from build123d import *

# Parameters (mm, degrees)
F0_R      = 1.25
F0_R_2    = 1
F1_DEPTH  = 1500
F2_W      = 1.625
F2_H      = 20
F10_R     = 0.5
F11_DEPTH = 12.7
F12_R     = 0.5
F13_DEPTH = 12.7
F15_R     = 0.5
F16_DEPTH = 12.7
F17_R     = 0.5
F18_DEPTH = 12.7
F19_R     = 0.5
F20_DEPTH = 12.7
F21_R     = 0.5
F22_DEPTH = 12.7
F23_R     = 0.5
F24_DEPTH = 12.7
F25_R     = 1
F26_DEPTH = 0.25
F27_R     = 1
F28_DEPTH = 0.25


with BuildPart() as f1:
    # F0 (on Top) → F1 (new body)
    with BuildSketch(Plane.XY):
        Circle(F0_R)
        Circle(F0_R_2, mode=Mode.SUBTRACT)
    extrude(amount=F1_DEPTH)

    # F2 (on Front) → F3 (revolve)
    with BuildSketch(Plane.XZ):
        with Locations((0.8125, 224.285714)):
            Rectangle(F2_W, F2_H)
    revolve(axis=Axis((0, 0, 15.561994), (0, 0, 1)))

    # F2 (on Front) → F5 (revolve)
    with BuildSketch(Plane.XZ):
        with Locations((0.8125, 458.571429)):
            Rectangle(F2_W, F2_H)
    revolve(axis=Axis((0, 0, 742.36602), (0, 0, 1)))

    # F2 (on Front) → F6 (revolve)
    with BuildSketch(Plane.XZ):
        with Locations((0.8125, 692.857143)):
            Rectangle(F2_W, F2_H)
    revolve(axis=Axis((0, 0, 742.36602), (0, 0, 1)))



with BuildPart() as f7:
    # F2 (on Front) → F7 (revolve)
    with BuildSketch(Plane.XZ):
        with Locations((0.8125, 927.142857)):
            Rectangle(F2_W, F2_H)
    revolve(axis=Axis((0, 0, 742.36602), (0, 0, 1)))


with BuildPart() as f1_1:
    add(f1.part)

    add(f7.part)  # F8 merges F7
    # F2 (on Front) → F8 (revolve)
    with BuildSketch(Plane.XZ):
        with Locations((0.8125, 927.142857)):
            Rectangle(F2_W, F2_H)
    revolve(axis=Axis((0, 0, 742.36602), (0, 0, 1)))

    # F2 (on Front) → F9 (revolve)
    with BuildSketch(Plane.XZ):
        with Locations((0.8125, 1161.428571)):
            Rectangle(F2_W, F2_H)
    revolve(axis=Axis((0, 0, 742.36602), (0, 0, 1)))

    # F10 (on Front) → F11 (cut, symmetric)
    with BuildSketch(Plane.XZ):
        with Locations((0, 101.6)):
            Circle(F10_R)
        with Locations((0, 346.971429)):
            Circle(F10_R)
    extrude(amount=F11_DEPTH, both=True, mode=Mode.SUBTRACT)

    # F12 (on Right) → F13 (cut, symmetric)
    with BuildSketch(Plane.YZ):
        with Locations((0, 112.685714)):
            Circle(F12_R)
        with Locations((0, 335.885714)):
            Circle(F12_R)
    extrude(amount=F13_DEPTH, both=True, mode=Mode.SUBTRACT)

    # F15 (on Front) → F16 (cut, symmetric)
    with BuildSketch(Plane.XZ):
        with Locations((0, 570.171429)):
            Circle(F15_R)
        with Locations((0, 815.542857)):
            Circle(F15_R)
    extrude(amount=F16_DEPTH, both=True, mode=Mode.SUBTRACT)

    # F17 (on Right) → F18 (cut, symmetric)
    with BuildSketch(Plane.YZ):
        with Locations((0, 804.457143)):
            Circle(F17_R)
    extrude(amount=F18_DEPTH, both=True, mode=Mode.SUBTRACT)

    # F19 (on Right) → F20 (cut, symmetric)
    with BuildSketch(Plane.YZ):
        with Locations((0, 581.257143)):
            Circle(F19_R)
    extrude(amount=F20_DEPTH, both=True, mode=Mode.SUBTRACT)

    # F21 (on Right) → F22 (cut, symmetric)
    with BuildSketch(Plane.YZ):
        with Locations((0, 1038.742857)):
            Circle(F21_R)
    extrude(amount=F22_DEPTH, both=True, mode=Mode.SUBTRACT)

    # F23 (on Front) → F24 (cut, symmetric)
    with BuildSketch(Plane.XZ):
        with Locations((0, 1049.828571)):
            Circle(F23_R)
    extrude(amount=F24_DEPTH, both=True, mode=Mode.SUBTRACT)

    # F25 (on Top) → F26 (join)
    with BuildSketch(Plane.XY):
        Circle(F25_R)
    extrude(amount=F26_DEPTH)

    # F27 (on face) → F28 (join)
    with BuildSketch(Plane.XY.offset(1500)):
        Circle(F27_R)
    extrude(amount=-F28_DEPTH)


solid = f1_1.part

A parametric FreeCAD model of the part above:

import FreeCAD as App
import Part
import Sketcher

V = App.Vector


def add_polygon(sketch, points):
    """Adds a closed chain of lines whose ends are joined by coincident constraints."""
    first, n = sketch.GeometryCount, len(points)
    for a, b in zip(points, points[1:] + points[:1]):
        sketch.addGeometry(Part.LineSegment(App.Vector(*a, 0), App.Vector(*b, 0)), False)
    for i in range(n):
        sketch.addConstraint(Sketcher.Constraint("Coincident", first + i, 2, first + (i + 1) % n, 1))

doc = App.newDocument("Part")
body = doc.addObject("PartDesign::Body", "Body")

# Sketch on XY plane
sketch1 = body.newObject("Sketcher::SketchObject", "Sketch")
sketch1.AttachmentSupport = (doc.getObject("XY_Plane"), [""])
sketch1.MapMode = "FlatFace"
sketch1.addGeometry([
    Part.Circle(V(0, 0, 0), V(0, 0, 1), 1.2),
    Part.Circle(V(0, 0, 0), V(0, 0, 1), 1),
], False)
sketch1.addConstraint([
    Sketcher.Constraint("Coincident", 0, 3, -1, 1),
    Sketcher.Constraint("Coincident", 1, 3, -1, 1),
    Sketcher.Constraint("Diameter", 1, 2.0),
    Sketcher.Constraint("Diameter", 0, 2.5),
])
pad1 = body.newObject("PartDesign::Pad", "Pad")
pad1.Profile = sketch1
pad1.Length = 1500

# Sketch on XZ plane
sketch2 = body.newObject("Sketcher::SketchObject", "Sketch001")
sketch2.AttachmentSupport = (doc.getObject("XZ_Plane"), [""])
sketch2.MapMode = "FlatFace"
add_polygon(sketch2, [(0, 234.3), (0, 214.3), (1.6, 214.3), (1.6, 234.3)])  # lines 0-3
sketch2.addConstraint([
    Sketcher.Constraint("Vertical", 0),
    Sketcher.Constraint("Horizontal", 1),
    Sketcher.Constraint("Vertical", 2),
    Sketcher.Constraint("Horizontal", 3),
    Sketcher.Constraint("PointOnObject", 0, 2, -2),
    Sketcher.Constraint("DistanceY", 0, 2, 0, 1, 20.0),
    Sketcher.Constraint("DistanceX", 1, 1, 1, 2, 1.625),
    Sketcher.Constraint("DistanceY", -1, 1, 0, 2, 214.285714),
])
revolution = body.newObject("PartDesign::Revolution", "Revolution")
revolution.Profile = sketch2
revolution.ReferenceAxis = (sketch2, ["V_Axis"])
revolution.Angle = 360

# Sketch on XZ plane
sketch3 = body.newObject("Sketcher::SketchObject", "Sketch002")
sketch3.AttachmentSupport = (doc.getObject("XZ_Plane"), [""])
sketch3.MapMode = "FlatFace"
add_polygon(sketch3, [(0, 468.6), (0, 448.6), (1.6, 448.6), (1.6, 468.6)])  # lines 0-3
sketch3.addConstraint([
    Sketcher.Constraint("Vertical", 0),
    Sketcher.Constraint("Horizontal", 1),
    Sketcher.Constraint("Vertical", 2),
    Sketcher.Constraint("Horizontal", 3),
    Sketcher.Constraint("PointOnObject", 0, 2, -2),
    Sketcher.Constraint("DistanceY", 0, 2, 0, 1, 20.0),
    Sketcher.Constraint("DistanceX", 1, 1, 1, 2, 1.625),
    Sketcher.Constraint("DistanceY", -1, 1, 0, 2, 448.571429),
])
revolution2 = body.newObject("PartDesign::Revolution", "Revolution001")
revolution2.Profile = sketch3
revolution2.ReferenceAxis = (sketch3, ["V_Axis"])
revolution2.Angle = 360

# Sketch on XZ plane
sketch4 = body.newObject("Sketcher::SketchObject", "Sketch003")
sketch4.AttachmentSupport = (doc.getObject("XZ_Plane"), [""])
sketch4.MapMode = "FlatFace"
add_polygon(sketch4, [(0, 702.9), (0, 682.9), (1.6, 682.9), (1.6, 702.9)])  # lines 0-3
sketch4.addConstraint([
    Sketcher.Constraint("Vertical", 0),
    Sketcher.Constraint("Horizontal", 1),
    Sketcher.Constraint("Vertical", 2),
    Sketcher.Constraint("Horizontal", 3),
    Sketcher.Constraint("PointOnObject", 0, 2, -2),
    Sketcher.Constraint("DistanceY", 0, 2, 0, 1, 20.0),
    Sketcher.Constraint("DistanceX", 1, 1, 1, 2, 1.625),
    Sketcher.Constraint("DistanceY", -1, 1, 0, 2, 682.857143),
])
revolution3 = body.newObject("PartDesign::Revolution", "Revolution002")
revolution3.Profile = sketch4
revolution3.ReferenceAxis = (sketch4, ["V_Axis"])
revolution3.Angle = 360
body2 = doc.addObject("PartDesign::Body", "Body001")

# Sketch on XZ plane
sketch5 = body2.newObject("Sketcher::SketchObject", "Sketch004")
sketch5.AttachmentSupport = (doc.getObject("XZ_Plane001"), [""])
sketch5.MapMode = "FlatFace"
add_polygon(sketch5, [(0, 937.1), (0, 917.1), (1.6, 917.1), (1.6, 937.1)])  # lines 0-3
sketch5.addConstraint([
    Sketcher.Constraint("Vertical", 0),
    Sketcher.Constraint("Horizontal", 1),
    Sketcher.Constraint("Vertical", 2),
    Sketcher.Constraint("Horizontal", 3),
    Sketcher.Constraint("PointOnObject", 0, 2, -2),
    Sketcher.Constraint("DistanceY", 0, 2, 0, 1, 20.0),
    Sketcher.Constraint("DistanceX", 1, 1, 1, 2, 1.625),
    Sketcher.Constraint("DistanceY", -1, 1, 0, 2, 917.142857),
])
revolution4 = body2.newObject("PartDesign::Revolution", "Revolution003")
revolution4.Profile = sketch5
revolution4.ReferenceAxis = (sketch5, ["V_Axis"])
revolution4.Angle = 360
doc.recompute()

boolean = body.newObject("PartDesign::Boolean", "Boolean")
boolean.Type = "Fuse"
boolean.addObjects([body2])

# Sketch on XZ plane
sketch6 = body.newObject("Sketcher::SketchObject", "Sketch005")
sketch6.AttachmentSupport = (doc.getObject("XZ_Plane"), [""])
sketch6.MapMode = "FlatFace"
add_polygon(sketch6, [(0, 937.1), (0, 917.1), (1.6, 917.1), (1.6, 937.1)])  # lines 0-3
sketch6.addConstraint([
    Sketcher.Constraint("Vertical", 0),
    Sketcher.Constraint("Horizontal", 1),
    Sketcher.Constraint("Vertical", 2),
    Sketcher.Constraint("Horizontal", 3),
    Sketcher.Constraint("PointOnObject", 0, 2, -2),
    Sketcher.Constraint("DistanceY", 0, 2, 0, 1, 20.0),
    Sketcher.Constraint("DistanceX", 1, 1, 1, 2, 1.625),
    Sketcher.Constraint("DistanceY", -1, 1, 0, 2, 917.142857),
])
revolution5 = body.newObject("PartDesign::Revolution", "Revolution004")
revolution5.Profile = sketch6
revolution5.ReferenceAxis = (sketch6, ["V_Axis"])
revolution5.Angle = 360

# Sketch on XZ plane
sketch7 = body.newObject("Sketcher::SketchObject", "Sketch006")
sketch7.AttachmentSupport = (doc.getObject("XZ_Plane"), [""])
sketch7.MapMode = "FlatFace"
add_polygon(sketch7, [(0, 1171.4), (0, 1151.4), (1.6, 1151.4), (1.6, 1171.4)])  # lines 0-3
sketch7.addConstraint([
    Sketcher.Constraint("Vertical", 0),
    Sketcher.Constraint("Horizontal", 1),
    Sketcher.Constraint("Vertical", 2),
    Sketcher.Constraint("Horizontal", 3),
    Sketcher.Constraint("PointOnObject", 0, 2, -2),
    Sketcher.Constraint("DistanceY", 0, 2, 0, 1, 20.0),
    Sketcher.Constraint("DistanceX", 1, 1, 1, 2, 1.625),
    Sketcher.Constraint("DistanceY", -1, 1, 0, 2, 1151.428571),
])
revolution6 = body.newObject("PartDesign::Revolution", "Revolution005")
revolution6.Profile = sketch7
revolution6.ReferenceAxis = (sketch7, ["V_Axis"])
revolution6.Angle = 360

# Sketch on XZ plane
sketch8 = body.newObject("Sketcher::SketchObject", "Sketch007")
sketch8.AttachmentSupport = (doc.getObject("XZ_Plane"), [""])
sketch8.MapMode = "FlatFace"
sketch8.addGeometry([
    Part.Circle(V(0, 101.6, 0), V(0, 0, 1), 0.5),
    Part.Circle(V(0, 347, 0), V(0, 0, 1), 0.5),
], False)
sketch8.addConstraint([
    Sketcher.Constraint("Equal", 0, 1),
    Sketcher.Constraint("PointOnObject", 0, 3, -2),
    Sketcher.Constraint("PointOnObject", 1, 3, -2),
    Sketcher.Constraint("Diameter", 0, 1.0),
    Sketcher.Constraint("DistanceY", -1, 1, 0, 3, 101.6),
    Sketcher.Constraint("DistanceY", -1, 1, 1, 3, 346.971429),
])
pocket1 = body.newObject("PartDesign::Pocket", "Pocket")
pocket1.Profile = sketch8
pocket1.Length = 25.4
pocket1.Midplane = True

# Sketch on YZ plane
sketch9 = body.newObject("Sketcher::SketchObject", "Sketch008")
sketch9.AttachmentSupport = (doc.getObject("YZ_Plane"), [""])
sketch9.MapMode = "FlatFace"
sketch9.addGeometry([
    Part.Circle(V(0, 112.7, 0), V(0, 0, 1), 0.5),
    Part.Circle(V(0, 335.9, 0), V(0, 0, 1), 0.5),
], False)
sketch9.addConstraint([
    Sketcher.Constraint("Equal", 0, 1),
    Sketcher.Constraint("PointOnObject", 0, 3, -2),
    Sketcher.Constraint("PointOnObject", 1, 3, -2),
    Sketcher.Constraint("Diameter", 0, 1.0),
    Sketcher.Constraint("DistanceY", 0, 3, 1, 3, 223.2),
    Sketcher.Constraint("DistanceY", -1, 1, 0, 3, 112.685714),
])
pocket2 = body.newObject("PartDesign::Pocket", "Pocket001")
pocket2.Profile = sketch9
pocket2.Length = 25.4
pocket2.Midplane = True

# Sketch on XZ plane
sketch10 = body.newObject("Sketcher::SketchObject", "Sketch009")
sketch10.AttachmentSupport = (doc.getObject("XZ_Plane"), [""])
sketch10.MapMode = "FlatFace"
sketch10.addGeometry([
    Part.Circle(V(0, 570.2, 0), V(0, 0, 1), 0.5),
    Part.Circle(V(0, 815.5, 0), V(0, 0, 1), 0.5),
], False)
sketch10.addConstraint([
    Sketcher.Constraint("Equal", 0, 1),
    Sketcher.Constraint("PointOnObject", 0, 3, -2),
    Sketcher.Constraint("PointOnObject", 1, 3, -2),
    Sketcher.Constraint("Diameter", 0, 1.0),
    Sketcher.Constraint("DistanceY", -1, 1, 0, 3, 570.171429),
    Sketcher.Constraint("DistanceY", 0, 3, 1, 3, 245.371428),
])
pocket3 = body.newObject("PartDesign::Pocket", "Pocket002")
pocket3.Profile = sketch10
pocket3.Length = 25.4
pocket3.Midplane = True

# Sketch on YZ plane
sketch11 = body.newObject("Sketcher::SketchObject", "Sketch010")
sketch11.AttachmentSupport = (doc.getObject("YZ_Plane"), [""])
sketch11.MapMode = "FlatFace"
sketch11.addGeometry(Part.Circle(V(0, 804.5, 0), V(0, 0, 1), 0.5), False)
sketch11.addConstraint([
    Sketcher.Constraint("PointOnObject", 0, 3, -2),
    Sketcher.Constraint("Diameter", 0, 1.0),
    Sketcher.Constraint("DistanceY", -1, 1, 0, 3, 804.457143),
])
pocket4 = body.newObject("PartDesign::Pocket", "Pocket003")
pocket4.Profile = sketch11
pocket4.Length = 25.4
pocket4.Midplane = True

# Sketch on YZ plane
sketch12 = body.newObject("Sketcher::SketchObject", "Sketch011")
sketch12.AttachmentSupport = (doc.getObject("YZ_Plane"), [""])
sketch12.MapMode = "FlatFace"
sketch12.addGeometry(Part.Circle(V(0, 581.3, 0), V(0, 0, 1), 0.5), False)
sketch12.addConstraint([
    Sketcher.Constraint("PointOnObject", 0, 3, -2),
    Sketcher.Constraint("Diameter", 0, 1.0),
    Sketcher.Constraint("DistanceY", -1, 1, 0, 3, 581.257143),
])
pocket5 = body.newObject("PartDesign::Pocket", "Pocket004")
pocket5.Profile = sketch12
pocket5.Length = 25.4
pocket5.Midplane = True

# Sketch on YZ plane
sketch13 = body.newObject("Sketcher::SketchObject", "Sketch012")
sketch13.AttachmentSupport = (doc.getObject("YZ_Plane"), [""])
sketch13.MapMode = "FlatFace"
sketch13.addGeometry(Part.Circle(V(0, 1038.7, 0), V(0, 0, 1), 0.5), False)
sketch13.addConstraint([
    Sketcher.Constraint("PointOnObject", 0, 3, -2),
    Sketcher.Constraint("Diameter", 0, 1.0),
    Sketcher.Constraint("DistanceY", -1, 1, 0, 3, 1038.742857),
])
pocket6 = body.newObject("PartDesign::Pocket", "Pocket005")
pocket6.Profile = sketch13
pocket6.Length = 25.4
pocket6.Midplane = True

# Sketch on XZ plane
sketch14 = body.newObject("Sketcher::SketchObject", "Sketch013")
sketch14.AttachmentSupport = (doc.getObject("XZ_Plane"), [""])
sketch14.MapMode = "FlatFace"
sketch14.addGeometry(Part.Circle(V(0, 1049.8, 0), V(0, 0, 1), 0.5), False)
sketch14.addConstraint([
    Sketcher.Constraint("PointOnObject", 0, 3, -2),
    Sketcher.Constraint("Diameter", 0, 1.0),
    Sketcher.Constraint("DistanceY", -1, 1, 0, 3, 1049.828571),
])
pocket7 = body.newObject("PartDesign::Pocket", "Pocket006")
pocket7.Profile = sketch14
pocket7.Length = 25.4
pocket7.Midplane = True

# Sketch on XY plane
sketch15 = body.newObject("Sketcher::SketchObject", "Sketch014")
sketch15.AttachmentSupport = (doc.getObject("XY_Plane"), [""])
sketch15.MapMode = "FlatFace"
sketch15.addGeometry(Part.Circle(V(0, 0, 0), V(0, 0, 1), 1), False)
sketch15.addConstraint([
    Sketcher.Constraint("Coincident", 0, 3, -1, 1),
    Sketcher.Constraint("Diameter", 0, 2.0),
])
pad2 = body.newObject("PartDesign::Pad", "Pad001")
pad2.Profile = sketch15
pad2.Length = 0.25

# Sketch on XY plane
sketch16 = body.newObject("Sketcher::SketchObject", "Sketch015")
sketch16.AttachmentSupport = (doc.getObject("XY_Plane"), [""])
sketch16.MapMode = "FlatFace"
sketch16.AttachmentOffset = App.Placement(V(0, 0, 1500), App.Rotation())
sketch16.addGeometry(Part.Circle(V(0, 0, 0), V(0, 0, 1), 1), False)
sketch16.addConstraint([
    Sketcher.Constraint("Coincident", 0, 3, -1, 1),
    Sketcher.Constraint("Diameter", 0, 2.0),
])
pad3 = body.newObject("PartDesign::Pad", "Pad002")
pad3.Profile = sketch16
pad3.Length = 0.25
pad3.Reversed = True

doc.recompute()
